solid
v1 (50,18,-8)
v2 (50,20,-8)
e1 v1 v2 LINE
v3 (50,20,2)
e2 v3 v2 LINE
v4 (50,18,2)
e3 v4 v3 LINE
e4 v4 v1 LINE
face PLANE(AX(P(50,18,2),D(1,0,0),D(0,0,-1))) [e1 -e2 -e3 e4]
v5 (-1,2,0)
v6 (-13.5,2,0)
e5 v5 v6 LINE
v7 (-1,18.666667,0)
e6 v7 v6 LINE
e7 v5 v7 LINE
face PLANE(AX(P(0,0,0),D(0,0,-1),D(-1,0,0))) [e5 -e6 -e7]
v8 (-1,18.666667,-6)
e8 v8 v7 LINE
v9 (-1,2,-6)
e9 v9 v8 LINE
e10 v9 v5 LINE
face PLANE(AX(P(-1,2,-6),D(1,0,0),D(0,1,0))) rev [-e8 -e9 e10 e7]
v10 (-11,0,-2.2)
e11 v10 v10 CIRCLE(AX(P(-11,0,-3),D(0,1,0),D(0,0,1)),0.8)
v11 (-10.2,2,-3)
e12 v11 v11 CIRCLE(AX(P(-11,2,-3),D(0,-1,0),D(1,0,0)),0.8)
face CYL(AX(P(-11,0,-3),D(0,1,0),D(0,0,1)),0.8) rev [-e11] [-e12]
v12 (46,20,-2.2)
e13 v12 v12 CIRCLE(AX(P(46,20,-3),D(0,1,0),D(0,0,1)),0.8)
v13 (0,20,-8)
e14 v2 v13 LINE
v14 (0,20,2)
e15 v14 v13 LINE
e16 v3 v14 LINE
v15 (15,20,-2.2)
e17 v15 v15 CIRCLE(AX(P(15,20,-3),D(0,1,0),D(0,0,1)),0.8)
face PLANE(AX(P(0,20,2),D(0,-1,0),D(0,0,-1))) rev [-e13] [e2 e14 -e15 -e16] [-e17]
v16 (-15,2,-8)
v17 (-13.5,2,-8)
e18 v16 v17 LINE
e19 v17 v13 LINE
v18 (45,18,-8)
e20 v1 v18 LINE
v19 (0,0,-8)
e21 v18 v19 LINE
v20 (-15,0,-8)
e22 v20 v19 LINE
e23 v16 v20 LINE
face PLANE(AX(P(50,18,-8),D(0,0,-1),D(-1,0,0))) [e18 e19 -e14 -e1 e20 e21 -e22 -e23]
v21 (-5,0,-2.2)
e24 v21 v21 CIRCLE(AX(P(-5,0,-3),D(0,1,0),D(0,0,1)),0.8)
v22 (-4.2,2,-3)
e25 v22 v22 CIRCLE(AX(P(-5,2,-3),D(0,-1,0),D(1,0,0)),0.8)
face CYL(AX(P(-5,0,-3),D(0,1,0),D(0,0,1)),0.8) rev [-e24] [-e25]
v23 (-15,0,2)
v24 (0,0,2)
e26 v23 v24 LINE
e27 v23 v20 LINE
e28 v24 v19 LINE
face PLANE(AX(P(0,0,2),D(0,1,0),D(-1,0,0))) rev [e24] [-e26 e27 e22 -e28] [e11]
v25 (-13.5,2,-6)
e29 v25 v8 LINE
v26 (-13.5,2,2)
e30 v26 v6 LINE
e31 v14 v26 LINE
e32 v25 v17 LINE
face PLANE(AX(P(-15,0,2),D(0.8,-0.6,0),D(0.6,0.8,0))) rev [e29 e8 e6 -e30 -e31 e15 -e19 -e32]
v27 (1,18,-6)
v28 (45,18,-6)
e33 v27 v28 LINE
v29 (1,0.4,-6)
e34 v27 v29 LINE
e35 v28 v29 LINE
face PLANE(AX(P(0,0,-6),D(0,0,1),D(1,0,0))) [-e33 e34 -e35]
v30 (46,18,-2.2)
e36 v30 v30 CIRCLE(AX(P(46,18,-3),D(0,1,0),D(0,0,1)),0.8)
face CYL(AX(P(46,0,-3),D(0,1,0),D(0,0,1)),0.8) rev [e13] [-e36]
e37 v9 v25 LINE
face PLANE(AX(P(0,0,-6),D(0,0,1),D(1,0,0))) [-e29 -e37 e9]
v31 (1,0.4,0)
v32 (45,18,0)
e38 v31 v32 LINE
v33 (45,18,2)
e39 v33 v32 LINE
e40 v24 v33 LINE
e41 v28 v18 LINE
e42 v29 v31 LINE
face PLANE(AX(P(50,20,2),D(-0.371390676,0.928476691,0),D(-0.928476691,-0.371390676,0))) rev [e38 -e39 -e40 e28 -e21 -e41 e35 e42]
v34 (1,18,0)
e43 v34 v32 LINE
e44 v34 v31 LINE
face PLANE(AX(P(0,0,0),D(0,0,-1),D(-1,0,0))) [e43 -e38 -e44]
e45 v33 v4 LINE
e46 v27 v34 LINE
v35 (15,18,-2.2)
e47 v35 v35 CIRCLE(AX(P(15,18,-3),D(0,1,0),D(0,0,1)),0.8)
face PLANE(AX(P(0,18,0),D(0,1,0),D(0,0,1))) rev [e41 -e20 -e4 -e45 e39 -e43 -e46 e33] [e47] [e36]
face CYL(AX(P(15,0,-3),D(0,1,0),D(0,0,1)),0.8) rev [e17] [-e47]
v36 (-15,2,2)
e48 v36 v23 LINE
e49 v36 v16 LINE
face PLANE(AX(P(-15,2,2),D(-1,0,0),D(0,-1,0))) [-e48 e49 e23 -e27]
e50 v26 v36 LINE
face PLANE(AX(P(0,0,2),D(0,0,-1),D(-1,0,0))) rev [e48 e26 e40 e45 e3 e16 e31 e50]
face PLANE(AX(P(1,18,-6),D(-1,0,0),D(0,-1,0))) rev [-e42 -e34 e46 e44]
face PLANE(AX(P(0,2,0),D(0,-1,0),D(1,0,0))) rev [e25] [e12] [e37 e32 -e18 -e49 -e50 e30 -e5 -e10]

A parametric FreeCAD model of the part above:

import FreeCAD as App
import Part
import Sketcher

doc = App.newDocument("Part")
params = doc.addObject("Spreadsheet::Sheet", "Params")
for row, (alias, value) in enumerate([
    ("sketch1_width", "15 mm"),
    ("sketch1_width2", "50 mm"),
    ("sketch1_length", "25 mm"),
    ("pad1_length", "2 mm"),
    ("sketch2_width", "50 mm"),
    ("sketch2_height", "10 mm"),
    ("pad2_length", "2 mm"),
    ("sketch3_width", "15 mm"),
    ("sketch3_height", "10 mm"),
    ("pad3_length", "2 mm"),
    ("sketch4_width", "15 mm"),
    ("sketch4_width2", "50 mm"),
    ("sketch4_length", "25 mm"),
    ("pad4_length", "2 mm"),
    ("sketch5_width", "1 mm"),
    ("sketch5_height", "2 mm"),
    ("sketch5_height2", "17.6 mm"),
    ("pad5_length", "6 mm"),
    ("sketch6_diameter", "1.6 mm"),
    ("pocket1_length", "20 mm"),
], start=1):
    params.set(f"A{row}", alias)
    params.set(f"B{row}", "=" + value)
    params.setAlias(f"B{row}", alias)

body = doc.addObject("PartDesign::Body", "Body")

# Sketch on XY plane
sketch1 = body.newObject("Sketcher::SketchObject", "Sketch")
sketch1.AttachmentSupport = (doc.getObject("XY_Plane"), [""])
sketch1.MapMode = "FlatFace"
sketch1.addGeometry(Part.LineSegment(App.Vector(-15, 0, 0), App.Vector(0, 0, 0)), False)
sketch1.addGeometry(Part.LineSegment(App.Vector(0, 0, 0), App.Vector(50, 20, 0)), False)
sketch1.addGeometry(Part.LineSegment(App.Vector(50, 20, 0), App.Vector(0, 20, 0)), False)
sketch1.addGeometry(Part.LineSegment(App.Vector(0, 20, 0), App.Vector(-15, 0, 0)), False)
sketch1.addConstraint(Sketcher.Constraint("Coincident", 0, 2, 1, 1))
sketch1.addConstraint(Sketcher.Constraint("Coincident", 1, 2, 2, 1))
sketch1.addConstraint(Sketcher.Constraint("Coincident", 2, 2, 3, 1))
sketch1.addConstraint(Sketcher.Constraint("Coincident", 3, 2, 0, 1))
sketch1.addConstraint(Sketcher.Constraint("Horizontal", 0))
sketch1.addConstraint(Sketcher.Constraint("Horizontal", 2))
sketch1.addConstraint(Sketcher.Constraint("Coincident", 0, 2, -1, 1))
sketch1.addConstraint(Sketcher.Constraint("PointOnObject", 2, 2, -2))
sketch1.addConstraint(Sketcher.Constraint("DistanceX", 0, 1, 0, 2, 15.0))
sketch1.addConstraint(Sketcher.Constraint("DistanceX", 2, 2, 2, 1, 50.0))
sketch1.addConstraint(Sketcher.Constraint("Distance", 3, 25.0))
sketch1.setExpression("Constraints[8]", "Params.sketch1_width")
sketch1.setExpression("Constraints[9]", "Params.sketch1_width2")
sketch1.setExpression("Constraints[10]", "Params.sketch1_length")
pad1 = body.newObject("PartDesign::Pad", "Pad")
pad1.Profile = sketch1
pad1.setExpression("Length", "Params.pad1_length")

# Sketch on XZ plane
sketch2 = body.newObject("Sketcher::SketchObject", "Sketch001")
sketch2.AttachmentSupport = (doc.getObject("XZ_Plane"), [""])
sketch2.MapMode = "FlatFace"
sketch2.AttachmentOffset = App.Placement(App.Vector(0, 0, -20), App.Rotation())
sketch2.addGeometry(Part.LineSegment(App.Vector(0, -8, 0), App.Vector(0, 2, 0)), False)
sketch2.addGeometry(Part.LineSegment(App.Vector(0, 2, 0), App.Vector(50, 2, 0)), False)
sketch2.addGeometry(Part.LineSegment(App.Vector(50, 2, 0), App.Vector(50, -8, 0)), False)
sketch2.addGeometry(Part.LineSegment(App.Vector(50, -8, 0), App.Vector(0, -8, 0)), False)
sketch2.addConstraint(Sketcher.Constraint("Coincident", 0, 2, 1, 1))
sketch2.addConstraint(Sketcher.Constraint("Coincident", 1, 2, 2, 1))
sketch2.addConstraint(Sketcher.Constraint("Coincident", 2, 2, 3, 1))
sketch2.addConstraint(Sketcher.Constraint("Coincident", 3, 2, 0, 1))
sketch2.addConstraint(Sketcher.Constraint("Vertical", 0))
sketch2.addConstraint(Sketcher.Constraint("Horizontal", 1))
sketch2.addConstraint(Sketcher.Constraint("Vertical", 2))
sketch2.addConstraint(Sketcher.Constraint("Horizontal", 3))
sketch2.addConstraint(Sketcher.Constraint("PointOnObject", 0, 2, -2))
sketch2.addConstraint(Sketcher.Constraint("DistanceX", 1, 1, 1, 2, 50.0))
sketch2.addConstraint(Sketcher.Constraint("DistanceY", 0, 1, 0, 2, 10.0))
sketch2.addConstraint(Sketcher.Constraint("DistanceY", -1, 1, 0, 2, 2.0))
sketch2.setExpression("Constraints[9]", "Params.sketch2_width")
sketch2.setExpression("Constraints[10]", "Params.sketch2_height")
pad2 = body.newObject("PartDesign::Pad", "Pad001")
pad2.Profile = sketch2
pad2.setExpression("Length", "Params.pad2_length")

# Sketch on XZ plane
sketch3 = body.newObject("Sketcher::SketchObject", "Sketch002")
sketch3.AttachmentSupport = (doc.getObject("XZ_Plane"), [""])
sketch3.MapMode = "FlatFace"
sketch3.addGeometry(Part.LineSegment(App.Vector(-15, 2, 0), App.Vector(-15, -8, 0)), False)
sketch3.addGeometry(Part.LineSegment(App.Vector(-15, -8, 0), App.Vector(0, -8, 0)), False)
sketch3.addGeometry(Part.LineSegment(App.Vector(0, -8, 0), App.Vector(0, 2, 0)), False)
sketch3.addGeometry(Part.LineSegment(App.Vector(0, 2, 0), App.Vector(-15, 2, 0)), False)
sketch3.addConstraint(Sketcher.Constraint("Coincident", 0, 2, 1, 1))
sketch3.addConstraint(Sketcher.Constraint("Coincident", 1, 2, 2, 1))
sketch3.addConstraint(Sketcher.Constraint("Coincident", 2, 2, 3, 1))
sketch3.addConstraint(Sketcher.Constraint("Coincident", 3, 2, 0, 1))
sketch3.addConstraint(Sketcher.Constraint("Vertical", 0))
sketch3.addConstraint(Sketcher.Constraint("Horizontal", 1))
sketch3.addConstraint(Sketcher.Constraint("Vertical", 2))
sketch3.addConstraint(Sketcher.Constraint("Horizontal", 3))
sketch3.addConstraint(Sketcher.Constraint("PointOnObject", 1, 2, -2))
sketch3.addConstraint(Sketcher.Constraint("DistanceX", 1, 1, 1, 2, 15.0))
sketch3.addConstraint(Sketcher.Constraint("DistanceY", 0, 2, 0, 1, 10.0))
sketch3.addConstraint(Sketcher.Constraint("DistanceY", 0, 2, -1, 1, 8.0))
sketch3.setExpression("Constraints[9]", "Params.sketch3_width")
sketch3.setExpression("Constraints[10]", "Params.sketch3_height")
pad3 = body.newObject("PartDesign::Pad", "Pad002")
pad3.Profile = sketch3
pad3.setExpression("Length", "Params.pad3_length")
pad3.Reversed = True

# Sketch on XY plane
sketch4 = body.newObject("Sketcher::SketchObject", "Sketch003")
sketch4.AttachmentSupport = (doc.getObject("XY_Plane"), [""])
sketch4.MapMode = "FlatFace"
sketch4.AttachmentOffset = App.Placement(App.Vector(0, 0, -8), App.Rotation())
sketch4.addGeometry(Part.LineSegment(App.Vector(50, 20, 0), App.Vector(0, 0, 0)), False)
sketch4.addGeometry(Part.LineSegment(App.Vector(0, 0, 0), App.Vector(-15, 0, 0)), False)
sketch4.addGeometry(Part.LineSegment(App.Vector(-15, 0, 0), App.Vector(0, 20, 0)), False)
sketch4.addGeometry(Part.LineSegment(App.Vector(0, 20, 0), App.Vector(50, 20, 0)), False)
sketch4.addConstraint(Sketcher.Constraint("Coincident", 0, 2, 1, 1))
sketch4.addConstraint(Sketcher.Constraint("Coincident", 1, 2, 2, 1))
sketch4.addConstraint(Sketcher.Constraint("Coincident", 2, 2, 3, 1))
sketch4.addConstraint(Sketcher.Constraint("Coincident", 3, 2, 0, 1))
sketch4.addConstraint(Sketcher.Constraint("Horizontal", 1))
sketch4.addConstraint(Sketcher.Constraint("Horizontal", 3))
sketch4.addConstraint(Sketcher.Constraint("Coincident", 0, 2, -1, 1))
sketch4.addConstraint(Sketcher.Constraint("PointOnObject", 2, 2, -2))
sketch4.addConstraint(Sketcher.Constraint("DistanceX", 1, 2, 1, 1, 15.0))
sketch4.addConstraint(Sketcher.Constraint("DistanceX", 3, 1, 3, 2, 50.0))
sketch4.addConstraint(Sketcher.Constraint("Distance", 2, 25.0))
sketch4.setExpression("Constraints[8]", "Params.sketch4_width")
sketch4.setExpression("Constraints[9]", "Params.sketch4_width2")
sketch4.setExpression("Constraints[10]", "Params.sketch4_length")
pad4 = body.newObject("PartDesign::Pad", "Pad003")
pad4.Profile = sketch4
pad4.setExpression("Length", "Params.pad4_length")

# Sketch on XY plane
sketch5 = body.newObject("Sketcher::SketchObject", "Sketch004")
sketch5.AttachmentSupport = (doc.getObject("XY_Plane"), [""])
sketch5.MapMode = "FlatFace"
sketch5.addGeometry(Part.LineSegment(App.Vector(0, 20, 0), App.Vector(0, 18, 0)), False)
sketch5.addGeometry(Part.LineSegment(App.Vector(0, 18, 0), App.Vector(1, 18, 0)), False)
sketch5.addGeometry(Part.LineSegment(App.Vector(1, 18, 0), App.Vector(1, 0.4, 0)), False)
sketch5.addGeometry(Part.LineSegment(App.Vector(1, 0.4, 0), App.Vector(0, 0, 0)), False)
sketch5.addGeometry(Part.LineSegment(App.Vector(0, 0, 0), App.Vector(0, 2, 0)), False)
sketch5.addGeometry(Part.LineSegment(App.Vector(0, 2, 0), App.Vector(-1, 2, 0)), False)
sketch5.addGeometry(Part.LineSegment(App.Vector(-1, 2, 0), App.Vector(-1, 18.666667, 0)), False)
sketch5.addGeometry(Part.LineSegment(App.Vector(-1, 18.666667, 0), App.Vector(0, 20, 0)), False)
sketch5.addConstraint(Sketcher.Constraint("Coincident", 0, 2, 1, 1))
sketch5.addConstraint(Sketcher.Constraint("Coincident", 1, 2, 2, 1))
sketch5.addConstraint(Sketcher.Constraint("Coincident", 2, 2, 3, 1))
sketch5.addConstraint(Sketcher.Constraint("Coincident", 3, 2, 4, 1))
sketch5.addConstraint(Sketcher.Constraint("Coincident", 4, 2, 5, 1))
sketch5.addConstraint(Sketcher.Constraint("Coincident", 5, 2, 6, 1))
sketch5.addConstraint(Sketcher.Constraint("Coincident", 6, 2, 7, 1))
sketch5.addConstraint(Sketcher.Constraint("Coincident", 7, 2, 0, 1))
sketch5.addConstraint(Sketcher.Constraint("Vertical", 0))
sketch5.addConstraint(Sketcher.Constraint("Horizontal", 1))
sketch5.addConstraint(Sketcher.Constraint("Vertical", 2))
sketch5.addConstraint(Sketcher.Constraint("Vertical", 4))
sketch5.addConstraint(Sketcher.Constraint("Horizontal", 5))
sketch5.addConstraint(Sketcher.Constraint("Vertical", 6))
sketch5.addConstraint(Sketcher.Constraint("Coincident", 3, 2, -1, 1))
sketch5.addConstraint(Sketcher.Constraint("PointOnObject", 0, 2, -2))
sketch5.addConstraint(Sketcher.Constraint("Equal", 1, 5))
sketch5.addConstraint(Sketcher.Constraint("Equal", 0, 4))
sketch5.addConstraint(Sketcher.Constraint("DistanceX", 1, 1, 1, 2, 1.0))
sketch5.addConstraint(Sketcher.Constraint("DistanceY", 0, 2, 0, 1, 2.0))
sketch5.addConstraint(Sketcher.Constraint("DistanceY", 2, 2, 2, 1, 17.6))
sketch5.addConstraint(Sketcher.Constraint("DistanceY", -1, 1, 0, 2, 18.0))
sketch5.addConstraint(Sketcher.Constraint("DistanceY", 6, 1, 6, 2, 16.666667))
sketch5.setExpression("Constraints[18]", "Params.sketch5_width")
sketch5.setExpression("Constraints[19]", "Params.sketch5_height")
sketch5.setExpression("Constraints[20]", "Params.sketch5_height2")
pad5 = body.newObject("PartDesign::Pad", "Pad004")
pad5.Profile = sketch5
pad5.setExpression("Length", "Params.pad5_length")
pad5.Reversed = True

# Sketch on XZ plane
sketch6 = body.newObject("Sketcher::SketchObject", "Sketch005")
sketch6.AttachmentSupport = (doc.getObject("XZ_Plane"), [""])
sketch6.MapMode = "FlatFace"
sketch6.AttachmentOffset = App.Placement(App.Vector(0, 0, -20), App.Rotation())
sketch6.addGeometry(Part.Circle(App.Vector(46, -3, 0), App.Vector(0, 0, 1), 0.8), False)
sketch6.addGeometry(Part.Circle(App.Vector(15, -3, 0), App.Vector(0, 0, 1), 0.8), False)
sketch6.addGeometry(Part.Circle(App.Vector(-11, -3, 0), App.Vector(0, 0, 1), 0.8), False)
sketch6.addGeometry(Part.Circle(App.Vector(-5, -3, 0), App.Vector(0, 0, 1), 0.8), False)
sketch6.addConstraint(Sketcher.Constraint("Equal", 0, 1))
sketch6.addConstraint(Sketcher.Constraint("Equal", 1, 2))
sketch6.addConstraint(Sketcher.Constraint("Equal", 2, 3))
sketch6.addConstraint(Sketcher.Constraint("Horizontal", 0, 3, 1, 3))
sketch6.addConstraint(Sketcher.Constraint("Horizontal", 1, 3, 2, 3))
sketch6.addConstraint(Sketcher.Constraint("Horizontal", 2, 3, 3, 3))
sketch6.addConstraint(Sketcher.Constraint("Diameter", 0, 1.6))
sketch6.addConstraint(Sketcher.Constraint("DistanceX", -1, 1, 0, 3, 46.0))
sketch6.addConstraint(Sketcher.Constraint("DistanceY", 0, 3, -1, 1, 3.0))
sketch6.addConstraint(Sketcher.Constraint("DistanceX", -1, 1, 1, 3, 15.0))
sketch6.addConstraint(Sketcher.Constraint("DistanceX", 2, 3, -1, 1, 11.0))
sketch6.addConstraint(Sketcher.Constraint("DistanceX", 3, 3, -1, 1, 5.0))
sketch6.setExpression("Constraints[6]", "Params.sketch6_diameter")
pocket1 = body.newObject("PartDesign::Pocket", "Pocket")
pocket1.Profile = sketch6
pocket1.setExpression("Length", "Params.pocket1_length")
pocket1.Reversed = True

doc.recompute()
